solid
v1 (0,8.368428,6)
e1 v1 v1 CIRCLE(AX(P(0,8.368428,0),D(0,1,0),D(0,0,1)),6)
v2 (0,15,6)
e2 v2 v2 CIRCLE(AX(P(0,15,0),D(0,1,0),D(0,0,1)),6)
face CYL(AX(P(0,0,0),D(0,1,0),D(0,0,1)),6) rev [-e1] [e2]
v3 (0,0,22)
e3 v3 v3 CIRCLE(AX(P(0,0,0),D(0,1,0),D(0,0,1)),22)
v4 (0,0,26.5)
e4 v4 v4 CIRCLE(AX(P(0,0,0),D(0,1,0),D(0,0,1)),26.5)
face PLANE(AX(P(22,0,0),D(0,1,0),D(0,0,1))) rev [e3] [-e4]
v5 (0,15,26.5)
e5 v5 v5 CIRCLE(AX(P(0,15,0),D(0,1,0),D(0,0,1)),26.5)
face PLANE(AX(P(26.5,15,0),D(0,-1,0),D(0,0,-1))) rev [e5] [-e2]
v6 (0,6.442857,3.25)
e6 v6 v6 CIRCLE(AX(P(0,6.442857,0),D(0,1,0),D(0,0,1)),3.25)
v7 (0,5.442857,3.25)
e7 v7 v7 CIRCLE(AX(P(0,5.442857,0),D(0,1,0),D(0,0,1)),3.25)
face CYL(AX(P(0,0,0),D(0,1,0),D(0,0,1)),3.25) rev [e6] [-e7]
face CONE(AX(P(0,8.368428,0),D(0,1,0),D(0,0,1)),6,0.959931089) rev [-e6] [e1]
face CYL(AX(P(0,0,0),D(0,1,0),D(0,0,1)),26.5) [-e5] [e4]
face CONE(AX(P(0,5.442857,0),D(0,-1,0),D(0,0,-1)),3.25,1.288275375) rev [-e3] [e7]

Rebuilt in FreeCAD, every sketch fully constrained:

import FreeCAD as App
import Part
import Sketcher

V = App.Vector
Q = App.Units.Quantity

doc = App.newDocument("Part")
body = doc.addObject("PartDesign::Body", "Body")

# Sketch on XY plane
sketch1 = body.newObject("Sketcher::SketchObject", "Sketch")
sketch1.AttachmentSupport = (doc.getObject("XY_Plane"), [""])
sketch1.MapMode = "FlatFace"
sketch1.addGeometry([
    Part.LineSegment(V(6, 8.4, 0), V(3.2, 6.4, 0)),  # 0
    Part.LineSegment(V(3.2, 6.4, 0), V(3.2, 5.4, 0)),  # 1
    Part.LineSegment(V(3.2, 5.4, 0), V(22, 0, 0)),  # 2
    Part.LineSegment(V(22, 0, 0), V(26.5, 0, 0)),  # 3
    Part.LineSegment(V(26.5, 0, 0), V(26.5, 15, 0)),  # 4
    Part.LineSegment(V(26.5, 15, 0), V(6, 15, 0)),  # 5
    Part.LineSegment(V(6, 15, 0), V(6, 8.4, 0)),  # 6
], False)
sketch1.addConstraint([
    Sketcher.Constraint("Coincident", 0, 2, 1, 1),
    Sketcher.Constraint("Coincident", 1, 2, 2, 1),
    Sketcher.Constraint("Coincident", 2, 2, 3, 1),
    Sketcher.Constraint("Coincident", 3, 2, 4, 1),
    Sketcher.Constraint("Coincident", 4, 2, 5, 1),
    Sketcher.Constraint("Coincident", 5, 2, 6, 1),
    Sketcher.Constraint("Coincident", 6, 2, 0, 1),
    Sketcher.Constraint("Vertical", 1),
    Sketcher.Constraint("Horizontal", 3),
    Sketcher.Constraint("Vertical", 4),
    Sketcher.Constraint("Horizontal", 5),
    Sketcher.Constraint("Vertical", 6),
    Sketcher.Constraint("PointOnObject", 2, 2, -1),
    Sketcher.Constraint("DistanceY", 1, 2, 1, 1, 1.0),
    Sketcher.Constraint("DistanceY", 4, 1, 4, 2, 15.0),
    Sketcher.Constraint("Angle", 0, Q("-145 deg")),
    Sketcher.Constraint("DistanceX", 3, 1, 3, 2, 4.5),
    Sketcher.Constraint("DistanceX", 5, 2, 5, 1, 20.5),
    Sketcher.Constraint("DistanceX", -1, 1, 2, 2, 22.0),
    Sketcher.Constraint("DistanceX", -1, 1, 0, 2, 3.25),
    Sketcher.Constraint("DistanceY", 6, 2, 6, 1, 6.631572),
])
revolution = body.newObject("PartDesign::Revolution", "Revolution")
revolution.Profile = sketch1
revolution.ReferenceAxis = (sketch1, ["V_Axis"])
revolution.Angle = 360

doc.recompute()
